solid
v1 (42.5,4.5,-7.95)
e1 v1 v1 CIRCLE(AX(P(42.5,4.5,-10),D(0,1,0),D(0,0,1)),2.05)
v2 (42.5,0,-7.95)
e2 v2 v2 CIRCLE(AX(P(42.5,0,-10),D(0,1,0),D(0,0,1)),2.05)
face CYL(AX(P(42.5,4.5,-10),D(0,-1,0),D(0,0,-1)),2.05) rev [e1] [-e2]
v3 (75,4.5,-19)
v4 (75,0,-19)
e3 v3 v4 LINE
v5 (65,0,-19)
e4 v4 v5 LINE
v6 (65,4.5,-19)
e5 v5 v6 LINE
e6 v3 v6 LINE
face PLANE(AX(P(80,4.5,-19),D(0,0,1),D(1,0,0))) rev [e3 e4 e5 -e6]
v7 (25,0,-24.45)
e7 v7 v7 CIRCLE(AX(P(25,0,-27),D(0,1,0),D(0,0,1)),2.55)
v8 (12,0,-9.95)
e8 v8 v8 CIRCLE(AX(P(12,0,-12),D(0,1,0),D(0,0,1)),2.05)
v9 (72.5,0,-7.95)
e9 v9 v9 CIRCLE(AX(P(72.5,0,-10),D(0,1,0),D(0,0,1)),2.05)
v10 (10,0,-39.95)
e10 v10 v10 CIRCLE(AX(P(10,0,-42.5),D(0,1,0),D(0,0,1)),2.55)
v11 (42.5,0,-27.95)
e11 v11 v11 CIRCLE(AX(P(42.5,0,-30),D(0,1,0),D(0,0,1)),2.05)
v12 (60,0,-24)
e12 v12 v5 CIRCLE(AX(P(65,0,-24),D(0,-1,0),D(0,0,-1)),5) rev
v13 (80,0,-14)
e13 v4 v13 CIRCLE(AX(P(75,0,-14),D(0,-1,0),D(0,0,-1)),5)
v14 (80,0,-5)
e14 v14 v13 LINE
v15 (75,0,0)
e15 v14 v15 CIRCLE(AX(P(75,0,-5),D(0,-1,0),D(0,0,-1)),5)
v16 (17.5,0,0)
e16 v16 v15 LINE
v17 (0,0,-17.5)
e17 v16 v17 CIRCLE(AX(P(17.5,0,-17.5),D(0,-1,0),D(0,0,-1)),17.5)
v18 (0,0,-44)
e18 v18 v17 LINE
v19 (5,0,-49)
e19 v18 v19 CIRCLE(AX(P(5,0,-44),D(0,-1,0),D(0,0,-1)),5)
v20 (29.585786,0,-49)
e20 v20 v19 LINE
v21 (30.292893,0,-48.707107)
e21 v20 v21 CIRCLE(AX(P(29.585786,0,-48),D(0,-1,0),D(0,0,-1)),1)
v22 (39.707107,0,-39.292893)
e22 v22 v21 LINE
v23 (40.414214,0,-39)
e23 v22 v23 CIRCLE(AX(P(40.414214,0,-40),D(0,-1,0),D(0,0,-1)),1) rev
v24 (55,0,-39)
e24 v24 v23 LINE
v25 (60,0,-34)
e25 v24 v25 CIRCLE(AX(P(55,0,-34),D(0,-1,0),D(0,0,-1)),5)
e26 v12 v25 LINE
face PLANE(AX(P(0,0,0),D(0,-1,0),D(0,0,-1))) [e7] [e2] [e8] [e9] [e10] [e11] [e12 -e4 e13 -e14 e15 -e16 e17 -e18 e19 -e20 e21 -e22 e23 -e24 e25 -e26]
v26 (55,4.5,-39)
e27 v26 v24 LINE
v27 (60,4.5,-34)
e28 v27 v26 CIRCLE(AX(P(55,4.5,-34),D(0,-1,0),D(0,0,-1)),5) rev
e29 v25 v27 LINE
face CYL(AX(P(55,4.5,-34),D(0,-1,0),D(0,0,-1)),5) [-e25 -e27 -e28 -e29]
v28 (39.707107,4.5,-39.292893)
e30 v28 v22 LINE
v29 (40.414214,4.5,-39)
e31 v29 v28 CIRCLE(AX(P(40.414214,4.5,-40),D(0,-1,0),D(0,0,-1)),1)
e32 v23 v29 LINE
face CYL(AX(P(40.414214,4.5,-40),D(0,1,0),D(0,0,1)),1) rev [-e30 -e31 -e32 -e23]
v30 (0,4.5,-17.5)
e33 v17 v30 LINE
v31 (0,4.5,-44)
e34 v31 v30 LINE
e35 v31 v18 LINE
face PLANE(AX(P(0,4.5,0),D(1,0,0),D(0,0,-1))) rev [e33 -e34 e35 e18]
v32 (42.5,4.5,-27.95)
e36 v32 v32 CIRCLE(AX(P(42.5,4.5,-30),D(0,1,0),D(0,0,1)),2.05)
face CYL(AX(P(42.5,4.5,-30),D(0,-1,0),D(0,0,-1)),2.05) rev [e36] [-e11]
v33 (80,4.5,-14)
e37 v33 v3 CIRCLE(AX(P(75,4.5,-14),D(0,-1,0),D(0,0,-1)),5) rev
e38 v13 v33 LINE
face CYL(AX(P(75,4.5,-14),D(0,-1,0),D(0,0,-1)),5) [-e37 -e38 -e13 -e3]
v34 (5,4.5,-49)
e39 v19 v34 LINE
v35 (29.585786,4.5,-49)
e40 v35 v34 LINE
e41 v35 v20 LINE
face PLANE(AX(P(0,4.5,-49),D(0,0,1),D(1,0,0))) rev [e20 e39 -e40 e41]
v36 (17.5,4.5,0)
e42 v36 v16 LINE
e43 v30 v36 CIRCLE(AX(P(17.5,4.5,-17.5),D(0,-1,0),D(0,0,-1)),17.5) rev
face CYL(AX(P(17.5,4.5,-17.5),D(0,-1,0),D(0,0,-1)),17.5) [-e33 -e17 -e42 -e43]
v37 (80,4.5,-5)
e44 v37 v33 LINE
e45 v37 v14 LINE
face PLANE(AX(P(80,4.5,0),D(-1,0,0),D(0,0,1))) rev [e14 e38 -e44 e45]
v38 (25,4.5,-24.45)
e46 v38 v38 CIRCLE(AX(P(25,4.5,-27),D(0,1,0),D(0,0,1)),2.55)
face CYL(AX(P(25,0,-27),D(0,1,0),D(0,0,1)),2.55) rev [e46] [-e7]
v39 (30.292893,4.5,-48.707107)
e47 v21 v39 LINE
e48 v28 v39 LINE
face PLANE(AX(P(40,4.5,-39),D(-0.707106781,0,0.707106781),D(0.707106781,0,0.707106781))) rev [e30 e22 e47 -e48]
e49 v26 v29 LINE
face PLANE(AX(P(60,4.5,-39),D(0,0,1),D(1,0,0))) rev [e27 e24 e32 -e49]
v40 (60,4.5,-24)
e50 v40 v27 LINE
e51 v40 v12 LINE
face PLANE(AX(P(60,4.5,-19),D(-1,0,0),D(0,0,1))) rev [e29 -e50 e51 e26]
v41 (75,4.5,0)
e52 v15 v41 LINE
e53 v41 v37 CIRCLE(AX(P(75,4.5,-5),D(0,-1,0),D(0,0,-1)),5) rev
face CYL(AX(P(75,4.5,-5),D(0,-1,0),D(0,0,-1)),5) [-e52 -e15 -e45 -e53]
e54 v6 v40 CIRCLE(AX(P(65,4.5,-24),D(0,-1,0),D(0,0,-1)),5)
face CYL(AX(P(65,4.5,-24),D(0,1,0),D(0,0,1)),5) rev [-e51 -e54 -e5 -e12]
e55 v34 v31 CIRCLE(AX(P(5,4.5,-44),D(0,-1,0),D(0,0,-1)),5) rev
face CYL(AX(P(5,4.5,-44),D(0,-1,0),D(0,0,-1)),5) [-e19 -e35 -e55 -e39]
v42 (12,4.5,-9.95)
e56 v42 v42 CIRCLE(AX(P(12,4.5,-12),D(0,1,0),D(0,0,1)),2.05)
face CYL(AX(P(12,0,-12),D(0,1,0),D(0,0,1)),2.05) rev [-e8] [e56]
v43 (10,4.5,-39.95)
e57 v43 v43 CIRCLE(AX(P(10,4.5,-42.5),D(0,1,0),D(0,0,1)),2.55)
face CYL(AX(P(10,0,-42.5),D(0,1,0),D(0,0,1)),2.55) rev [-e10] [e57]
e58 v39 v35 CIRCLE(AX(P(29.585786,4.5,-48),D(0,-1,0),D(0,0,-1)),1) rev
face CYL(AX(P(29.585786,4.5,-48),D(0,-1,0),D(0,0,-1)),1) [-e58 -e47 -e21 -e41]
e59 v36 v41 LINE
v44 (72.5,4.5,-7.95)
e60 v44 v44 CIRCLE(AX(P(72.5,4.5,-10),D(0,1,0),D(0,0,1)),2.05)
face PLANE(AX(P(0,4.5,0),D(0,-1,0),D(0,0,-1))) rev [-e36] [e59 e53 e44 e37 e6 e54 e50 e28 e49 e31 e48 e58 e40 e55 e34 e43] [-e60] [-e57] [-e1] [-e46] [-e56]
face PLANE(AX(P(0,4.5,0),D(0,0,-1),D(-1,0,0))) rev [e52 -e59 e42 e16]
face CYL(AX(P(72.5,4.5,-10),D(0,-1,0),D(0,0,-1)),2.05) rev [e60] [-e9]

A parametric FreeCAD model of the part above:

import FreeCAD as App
import Part
import Sketcher
Q = App.Units.Quantity


def edges_at(feature, points):
    """Names of the edges that pass closest to the given points."""
    edges = feature.Shape.Edges
    near = lambda p: min(range(len(edges)), key=lambda i: edges[i].distToShape(Part.Vertex(*p))[0])
    return sorted({f"Edge{near(p) + 1}" for p in points})


def add_polygon(sketch, points):
    """Adds a closed chain of lines whose ends are joined by coincident constraints."""
    first, n = sketch.GeometryCount, len(points)
    for a, b in zip(points, points[1:] + points[:1]):
        sketch.addGeometry(Part.LineSegment(App.Vector(*a, 0), App.Vector(*b, 0)), False)
    for i in range(n):
        sketch.addConstraint(Sketcher.Constraint("Coincident", first + i, 2, first + (i + 1) % n, 1))

doc = App.newDocument("Part")
params = doc.addObject("Spreadsheet::Sheet", "Params")
for row, (alias, value) in enumerate([
    ("sketch1_diameter", "4.1 mm"),
    ("sketch1_width", "20 mm"),
    ("sketch1_width2", "30 mm"),
    ("sketch1_width3", "80 mm"),
    ("sketch1_height", "49 mm"),
    ("pad1_length", "4.5 mm"),
    ("sketch2_diameter", "5.1 mm"),
    ("sketch2_diameter2", "4.1 mm"),
    ("fillet_radius", "5 mm"),
    ("fillet2_radius", "17.5 mm"),
    ("fillet3_radius", "1 mm"),
], start=1):
    params.set(f"A{row}", alias)
    params.set(f"B{row}", "=" + value)
    params.setAlias(f"B{row}", alias)

body = doc.addObject("PartDesign::Body", "Body")

# Sketch on XZ plane
sketch1 = body.newObject("Sketcher::SketchObject", "Sketch")
sketch1.AttachmentSupport = (doc.getObject("XZ_Plane"), [""])
sketch1.MapMode = "FlatFace"
add_polygon(sketch1, [(80, -19), (60, -19), (60, -39), (40, -39), (30, -49), (0, -49), (0, 0), (80, 0)])  # lines 0-7
sketch1.addGeometry(Part.Circle(App.Vector(42.5, -10, 0), App.Vector(0, 0, 1), 2), False)  # 8
sketch1.addGeometry(Part.Circle(App.Vector(72.5, -10, 0), App.Vector(0, 0, 1), 2), False)  # 9
sketch1.addGeometry(Part.Circle(App.Vector(42.5, -30, 0), App.Vector(0, 0, 1), 2), False)  # 10
sketch1.addConstraint([
    Sketcher.Constraint("Horizontal", 0),
    Sketcher.Constraint("Vertical", 1),
    Sketcher.Constraint("Horizontal", 2),
    Sketcher.Constraint("Horizontal", 4),
    Sketcher.Constraint("Vertical", 5),
    Sketcher.Constraint("Horizontal", 6),
    Sketcher.Constraint("Vertical", 7),
    Sketcher.Constraint("Coincident", 5, 2, -1, 1),
    Sketcher.Constraint("Equal", 8, 9),
    Sketcher.Constraint("Equal", 9, 10),
    Sketcher.Constraint("Horizontal", 8, 3, 9, 3),
    Sketcher.Constraint("Vertical", 8, 3, 10, 3),
    Sketcher.Constraint("Equal", 0, 2),
    Sketcher.Constraint("Equal", 2, 1),
    Sketcher.Constraint("Diameter", 8, Q("4.1 mm")),
    Sketcher.Constraint("DistanceX", 0, 2, 0, 1, Q("20 mm")),
    Sketcher.Constraint("DistanceX", 4, 2, 4, 1, Q("30 mm")),
    Sketcher.Constraint("DistanceX", 6, 1, 6, 2, Q("80 mm")),
    Sketcher.Constraint("DistanceY", 5, 1, 5, 2, Q("49 mm")),
    Sketcher.Constraint("DistanceY", 7, 2, 7, 1, Q("19 mm")),
    Sketcher.Constraint("DistanceY", 8, 3, -1, 1, Q("10 mm")),
    Sketcher.Constraint("DistanceY", 10, 3, -1, 1, Q("30 mm")),
    Sketcher.Constraint("DistanceX", 8, 3, 9, 3, Q("30 mm")),
    Sketcher.Constraint("DistanceX", -1, 1, 8, 3, Q("42.5 mm")),
])
sketch1.setExpression("Constraints[22]", "Params.sketch1_diameter")
sketch1.setExpression("Constraints[23]", "Params.sketch1_width")
sketch1.setExpression("Constraints[24]", "Params.sketch1_width2")
sketch1.setExpression("Constraints[25]", "Params.sketch1_width3")
sketch1.setExpression("Constraints[26]", "Params.sketch1_height")
pad1 = body.newObject("PartDesign::Pad", "Pad")
pad1.Profile = sketch1
pad1.setExpression("Length", "Params.pad1_length")
pad1.Reversed = True

# Sketch on XZ plane
sketch2 = body.newObject("Sketcher::SketchObject", "Sketch001")
sketch2.AttachmentSupport = (doc.getObject("XZ_Plane"), [""])
sketch2.MapMode = "FlatFace"
sketch2.AttachmentOffset = App.Placement(App.Vector(0, 0, -4.5), App.Rotation())
sketch2.addGeometry([
    Part.Circle(App.Vector(25, -27, 0), App.Vector(0, 0, 1), 2.5),
    Part.Circle(App.Vector(10, -42.5, 0), App.Vector(0, 0, 1), 2.5),
    Part.Circle(App.Vector(12, -12, 0), App.Vector(0, 0, 1), 2),
], False)
sketch2.addConstraint([
    Sketcher.Constraint("Equal", 0, 1),
    Sketcher.Constraint("Diameter", 0, Q("5.1 mm")),
    Sketcher.Constraint("Diameter", 2, Q("4.1 mm")),
    Sketcher.Constraint("DistanceX", -1, 1, 0, 3, Q("25 mm")),
    Sketcher.Constraint("DistanceY", 0, 3, -1, 1, Q("27 mm")),
    Sketcher.Constraint("DistanceX", -1, 1, 1, 3, Q("10 mm")),
    Sketcher.Constraint("DistanceX", -1, 1, 2, 3, Q("12 mm")),
    Sketcher.Constraint("DistanceY", 2, 3, -1, 1, Q("12 mm")),
    Sketcher.Constraint("DistanceY", 1, 3, -1, 1, Q("42.5 mm")),
])
sketch2.setExpression("Constraints[1]", "Params.sketch2_diameter")
sketch2.setExpression("Constraints[2]", "Params.sketch2_diameter2")
pocket1 = body.newObject("PartDesign::Pocket", "Pocket")
pocket1.Profile = sketch2
pocket1.Type = "ThroughAll"
pocket1.Reversed = True
doc.recompute()

fillet = body.newObject("PartDesign::Fillet", "Fillet")
fillet.Base = (pocket1, edges_at(pocket1, [
    (0, 2.25, -49),
    (60, 2.25, -39),
    (60, 2.25, -19),
    (80, 2.25, -19),
    (80, 2.25, 0),
]))
fillet.setExpression("Radius", "Params.fillet_radius")
doc.recompute()

fillet2 = body.newObject("PartDesign::Fillet", "Fillet001")
fillet2.Base = (fillet, edges_at(fillet, [(0, 2.25, 0)]))
fillet2.setExpression("Radius", "Params.fillet2_radius")
doc.recompute()

fillet3 = body.newObject("PartDesign::Fillet", "Fillet002")
fillet3.Base = (fillet2, edges_at(fillet2, [(30, 2.25, -49), (40, 2.25, -39)]))
fillet3.setExpression("Radius", "Params.fillet3_radius")

doc.recompute()
